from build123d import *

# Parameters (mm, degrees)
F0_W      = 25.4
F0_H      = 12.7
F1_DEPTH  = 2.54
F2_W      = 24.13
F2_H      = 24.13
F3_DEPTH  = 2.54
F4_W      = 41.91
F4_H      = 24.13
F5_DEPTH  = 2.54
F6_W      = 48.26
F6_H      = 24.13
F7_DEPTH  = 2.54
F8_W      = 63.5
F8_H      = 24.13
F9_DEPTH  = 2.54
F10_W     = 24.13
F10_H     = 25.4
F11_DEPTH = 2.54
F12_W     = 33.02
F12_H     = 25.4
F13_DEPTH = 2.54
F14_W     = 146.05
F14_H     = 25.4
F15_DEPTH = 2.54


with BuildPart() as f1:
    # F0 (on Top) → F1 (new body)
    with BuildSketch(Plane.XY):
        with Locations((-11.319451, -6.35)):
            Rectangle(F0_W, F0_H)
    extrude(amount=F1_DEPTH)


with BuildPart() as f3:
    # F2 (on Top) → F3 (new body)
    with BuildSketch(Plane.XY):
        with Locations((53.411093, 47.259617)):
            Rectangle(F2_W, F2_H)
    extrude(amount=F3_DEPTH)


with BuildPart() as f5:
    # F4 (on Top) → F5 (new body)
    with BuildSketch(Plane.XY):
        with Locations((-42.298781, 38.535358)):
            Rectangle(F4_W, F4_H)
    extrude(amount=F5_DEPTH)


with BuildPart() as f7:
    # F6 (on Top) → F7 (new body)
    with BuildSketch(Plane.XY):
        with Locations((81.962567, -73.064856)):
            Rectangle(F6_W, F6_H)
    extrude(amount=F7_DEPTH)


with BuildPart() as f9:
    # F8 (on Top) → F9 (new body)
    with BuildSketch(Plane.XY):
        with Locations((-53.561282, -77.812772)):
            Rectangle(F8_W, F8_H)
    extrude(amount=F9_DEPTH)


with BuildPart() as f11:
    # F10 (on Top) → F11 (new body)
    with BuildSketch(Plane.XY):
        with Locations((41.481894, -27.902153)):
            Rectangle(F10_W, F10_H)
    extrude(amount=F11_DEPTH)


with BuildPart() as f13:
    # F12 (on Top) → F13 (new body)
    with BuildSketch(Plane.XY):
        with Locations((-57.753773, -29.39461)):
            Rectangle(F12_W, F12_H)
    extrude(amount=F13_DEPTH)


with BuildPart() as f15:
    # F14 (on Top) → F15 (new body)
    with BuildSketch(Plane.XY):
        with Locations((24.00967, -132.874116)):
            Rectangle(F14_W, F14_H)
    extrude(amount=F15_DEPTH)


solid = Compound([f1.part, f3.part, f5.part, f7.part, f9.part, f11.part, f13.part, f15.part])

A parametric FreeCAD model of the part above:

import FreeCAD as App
import Part
import Sketcher
from FreeCAD import Vector
Q = App.Units.Quantity


def add_polygon(sketch, points):
    """Adds a closed chain of lines whose ends are joined by coincident constraints."""
    first, n = sketch.GeometryCount, len(points)
    for a, b in zip(points, points[1:] + points[:1]):
        sketch.addGeometry(Part.LineSegment(App.Vector(*a, 0), App.Vector(*b, 0)), False)
    for i in range(n):
        sketch.addConstraint(Sketcher.Constraint("Coincident", first + i, 2, first + (i + 1) % n, 1))

doc = App.newDocument("Part")
params = doc.addObject("Spreadsheet::Sheet", "Params")
for row, (alias, value) in enumerate([
    ("sketch1_width", "1 in"),
    ("sketch1_height", "0.5 in"),
    ("pad1_length", "0.1 in"),
    ("sketch2_width", "0.95 in"),
    ("pad2_length", "0.1 in"),
    ("sketch3_width", "1.65 in"),
    ("sketch3_height", "0.95 in"),
    ("pad3_length", "0.1 in"),
    ("sketch4_width", "1.9 in"),
    ("sketch4_height", "0.95 in"),
    ("pad4_length", "0.1 in"),
    ("sketch5_width", "2.5 in"),
    ("sketch5_height", "0.95 in"),
    ("pad5_length", "0.1 in"),
    ("sketch6_height", "1 in"),
    ("sketch6_width", "0.95 in"),
    ("pad6_length", "0.1 in"),
    ("sketch7_height", "1 in"),
    ("sketch7_width", "1.3 in"),
    ("pad7_length", "0.1 in"),
    ("sketch8_height", "1 in"),
    ("sketch8_width", "5.75 in"),
    ("pad8_length", "0.1 in"),
], start=1):
    params.set(f"A{row}", alias)
    params.set(f"B{row}", "=" + value)
    params.setAlias(f"B{row}", alias)

body = doc.addObject("PartDesign::Body", "Body")

sketch1 = body.newObject("Sketcher::SketchObject", "Sketch")
sketch1.AttachmentSupport = (doc.getObject("XY_Plane"), [""])
sketch1.MapMode = "FlatFace"
add_polygon(sketch1, [(-24, 0), (-24, -13), (1, -13), (1, 0)])
sketch1.addConstraint([
    Sketcher.Constraint("Vertical", 0),
    Sketcher.Constraint("Horizontal", 1),
    Sketcher.Constraint("Vertical", 2),
    Sketcher.Constraint("Horizontal", 3),
    Sketcher.Constraint("PointOnObject", 2, 2, -1),
    Sketcher.Constraint("DistanceX", 1, 1, 1, 2, Q("1 in")),
    Sketcher.Constraint("DistanceY", 0, 2, 0, 1, Q("0.5 in")),
    Sketcher.Constraint("DistanceX", 0, 2, -1, 1, 24.019451),
])
sketch1.setExpression("Constraints[9]", "Params.sketch1_width")
sketch1.setExpression("Constraints[10]", "Params.sketch1_height")
pad1 = body.newObject("PartDesign::Pad", "Pad")
pad1.Profile = sketch1
pad1.setExpression("Length", "Params.pad1_length")
body2 = doc.addObject("PartDesign::Body", "Body001")

sketch2 = body2.newObject("Sketcher::SketchObject", "Sketch001")
sketch2.AttachmentSupport = (doc.getObject("XY_Plane001"), [""])
sketch2.MapMode = "FlatFace"
add_polygon(sketch2, [(41, 59), (41, 35), (65, 35), (65, 59)])
sketch2.addConstraint([
    Sketcher.Constraint("Vertical", 0),
    Sketcher.Constraint("Horizontal", 1),
    Sketcher.Constraint("Vertical", 2),
    Sketcher.Constraint("Horizontal", 3),
    Sketcher.Constraint("Equal", 3, 0),
    Sketcher.Constraint("DistanceX", 1, 1, 1, 2, Q("0.95 in")),
    Sketcher.Constraint("DistanceX", -1, 1, 0, 2, 41.346093),
    Sketcher.Constraint("DistanceY", -1, 1, 0, 2, 35.194617),
])
sketch2.setExpression("Constraints[9]", "Params.sketch2_width")
pad2 = body2.newObject("PartDesign::Pad", "Pad001")
pad2.Profile = sketch2
pad2.setExpression("Length", "Params.pad2_length")
body3 = doc.addObject("PartDesign::Body", "Body002")

sketch3 = body3.newObject("Sketcher::SketchObject", "Sketch002")
sketch3.AttachmentSupport = (doc.getObject("XY_Plane002"), [""])
sketch3.MapMode = "FlatFace"
add_polygon(sketch3, [(-63, 51), (-63, 26), (-21, 26), (-21, 51)])
sketch3.addConstraint([
    Sketcher.Constraint("Vertical", 0),
    Sketcher.Constraint("Horizontal", 1),
    Sketcher.Constraint("Vertical", 2),
    Sketcher.Constraint("Horizontal", 3),
    Sketcher.Constraint("DistanceX", 1, 1, 1, 2, Q("1.65 in")),
    Sketcher.Constraint("DistanceY", 0, 2, 0, 1, Q("0.95 in")),
    Sketcher.Constraint("DistanceX", 0, 2, -1, 1, 63.253781),
    Sketcher.Constraint("DistanceY", -1, 1, 0, 2, 26.470358),
])
sketch3.setExpression("Constraints[8]", "Params.sketch3_width")
sketch3.setExpression("Constraints[9]", "Params.sketch3_height")
pad3 = body3.newObject("PartDesign::Pad", "Pad002")
pad3.Profile = sketch3
pad3.setExpression("Length", "Params.pad3_length")
body4 = doc.addObject("PartDesign::Body", "Body003")

sketch4 = body4.newObject("Sketcher::SketchObject", "Sketch003")
sketch4.AttachmentSupport = (doc.getObject("XY_Plane003"), [""])
sketch4.MapMode = "FlatFace"
add_polygon(sketch4, [(58, -61), (58, -85), (106, -85), (106, -61)])
sketch4.addConstraint([
    Sketcher.Constraint("Vertical", 0),
    Sketcher.Constraint("Horizontal", 1),
    Sketcher.Constraint("Vertical", 2),
    Sketcher.Constraint("Horizontal", 3),
    Sketcher.Constraint("DistanceX", 1, 1, 1, 2, Q("1.9 in")),
    Sketcher.Constraint("DistanceY", 0, 2, 0, 1, Q("0.95 in")),
    Sketcher.Constraint("DistanceX", -1, 1, 0, 2, 57.832567),
    Sketcher.Constraint("DistanceY", 0, 2, -1, 1, 85.129856),
])
sketch4.setExpression("Constraints[8]", "Params.sketch4_width")
sketch4.setExpression("Constraints[9]", "Params.sketch4_height")
pad4 = body4.newObject("PartDesign::Pad", "Pad003")
pad4.Profile = sketch4
pad4.setExpression("Length", "Params.pad4_length")
body5 = doc.addObject("PartDesign::Body", "Body004")

sketch5 = body5.newObject("Sketcher::SketchObject", "Sketch004")
sketch5.AttachmentSupport = (doc.getObject("XY_Plane004"), [""])
sketch5.MapMode = "FlatFace"
add_polygon(sketch5, [(-85, -66), (-85, -90), (-22, -90), (-22, -66)])
sketch5.addConstraint([
    Sketcher.Constraint("Vertical", 0),
    Sketcher.Constraint("Horizontal", 1),
    Sketcher.Constraint("Vertical", 2),
    Sketcher.Constraint("Horizontal", 3),
    Sketcher.Constraint("DistanceX", 1, 1, 1, 2, Q("2.5 in")),
    Sketcher.Constraint("DistanceY", 0, 2, 0, 1, Q("0.95 in")),
    Sketcher.Constraint("DistanceY", 0, 2, -1, 1, 89.877772),
    Sketcher.Constraint("DistanceX", 1, 2, -1, 1, 21.811282),
])
sketch5.setExpression("Constraints[8]", "Params.sketch5_width")
sketch5.setExpression("Constraints[9]", "Params.sketch5_height")
pad5 = body5.newObject("PartDesign::Pad", "Pad004")
pad5.Profile = sketch5
pad5.setExpression("Length", "Params.pad5_length")
body6 = doc.addObject("PartDesign::Body", "Body005")

sketch6 = body6.newObject("Sketcher::SketchObject", "Sketch005")
sketch6.AttachmentSupport = (doc.getObject("XY_Plane005"), [""])
sketch6.MapMode = "FlatFace"
add_polygon(sketch6, [(29, -15), (29, -41), (54, -41), (54, -15)])
sketch6.addConstraint([
    Sketcher.Constraint("Vertical", 0),
    Sketcher.Constraint("Horizontal", 1),
    Sketcher.Constraint("Vertical", 2),
    Sketcher.Constraint("Horizontal", 3),
    Sketcher.Constraint("DistanceY", 0, 2, 0, 1, Q("1 in")),
    Sketcher.Constraint("DistanceX", 1, 1, 1, 2, Q("0.95 in")),
    Sketcher.Constraint("DistanceX", -1, 1, 0, 2, 29.416894),
    Sketcher.Constraint("DistanceY", 0, 2, -1, 1, 40.602153),
])
sketch6.setExpression("Constraints[8]", "Params.sketch6_height")
sketch6.setExpression("Constraints[9]", "Params.sketch6_width")
pad6 = body6.newObject("PartDesign::Pad", "Pad005")
pad6.Profile = sketch6
pad6.setExpression("Length", "Params.pad6_length")
body7 = doc.addObject("PartDesign::Body", "Body006")

sketch7 = body7.newObject("Sketcher::SketchObject", "Sketch006")
sketch7.AttachmentSupport = (doc.getObject("XY_Plane006"), [""])
sketch7.MapMode = "FlatFace"
add_polygon(sketch7, [(-74, -17), (-74, -42), (-41, -42), (-41, -17)])
sketch7.addConstraint([
    Sketcher.Constraint("Vertical", 0),
    Sketcher.Constraint("Horizontal", 1),
    Sketcher.Constraint("Vertical", 2),
    Sketcher.Constraint("Horizontal", 3),
    Sketcher.Constraint("DistanceY", 0, 2, 0, 1, Q("1 in")),
    Sketcher.Constraint("DistanceX", 1, 1, 1, 2, Q("1.3 in")),
    Sketcher.Constraint("DistanceY", 0, 2, -1, 1, 42.09461),
    Sketcher.Constraint("DistanceX", 0, 2, -1, 1, 74.263773),
])
sketch7.setExpression("Constraints[8]", "Params.sketch7_height")
sketch7.setExpression("Constraints[9]", "Params.sketch7_width")
pad7 = body7.newObject("PartDesign::Pad", "Pad006")
pad7.Profile = sketch7
pad7.setExpression("Length", "Params.pad7_length")
body8 = doc.addObject("PartDesign::Body", "Body007")

sketch8 = body8.newObject("Sketcher::SketchObject", "Sketch007")
sketch8.AttachmentSupport = (doc.getObject("XY_Plane007"), [""])
sketch8.MapMode = "FlatFace"
add_polygon(sketch8, [(-49, -120), (-49, -146), (97, -146), (97, -120)])
sketch8.addConstraint([
    Sketcher.Constraint("Vertical", 0),
    Sketcher.Constraint("Horizontal", 1),
    Sketcher.Constraint("Vertical", 2),
    Sketcher.Constraint("Horizontal", 3),
    Sketcher.Constraint("DistanceY", 0, 2, 0, 1, Q("1 in")),
    Sketcher.Constraint("DistanceX", 1, 1, 1, 2, Q("5.75 in")),
    Sketcher.Constraint("DistanceX", 0, 2, -1, 1, 49.01533),
    Sketcher.Constraint("DistanceY", 0, 2, -1, 1, 145.574116),
])
sketch8.setExpression("Constraints[8]", "Params.sketch8_height")
sketch8.setExpression("Constraints[9]", "Params.sketch8_width")
pad8 = body8.newObject("PartDesign::Pad", "Pad007")
pad8.Profile = sketch8
pad8.setExpression("Length", "Params.pad8_length")

doc.recompute()
